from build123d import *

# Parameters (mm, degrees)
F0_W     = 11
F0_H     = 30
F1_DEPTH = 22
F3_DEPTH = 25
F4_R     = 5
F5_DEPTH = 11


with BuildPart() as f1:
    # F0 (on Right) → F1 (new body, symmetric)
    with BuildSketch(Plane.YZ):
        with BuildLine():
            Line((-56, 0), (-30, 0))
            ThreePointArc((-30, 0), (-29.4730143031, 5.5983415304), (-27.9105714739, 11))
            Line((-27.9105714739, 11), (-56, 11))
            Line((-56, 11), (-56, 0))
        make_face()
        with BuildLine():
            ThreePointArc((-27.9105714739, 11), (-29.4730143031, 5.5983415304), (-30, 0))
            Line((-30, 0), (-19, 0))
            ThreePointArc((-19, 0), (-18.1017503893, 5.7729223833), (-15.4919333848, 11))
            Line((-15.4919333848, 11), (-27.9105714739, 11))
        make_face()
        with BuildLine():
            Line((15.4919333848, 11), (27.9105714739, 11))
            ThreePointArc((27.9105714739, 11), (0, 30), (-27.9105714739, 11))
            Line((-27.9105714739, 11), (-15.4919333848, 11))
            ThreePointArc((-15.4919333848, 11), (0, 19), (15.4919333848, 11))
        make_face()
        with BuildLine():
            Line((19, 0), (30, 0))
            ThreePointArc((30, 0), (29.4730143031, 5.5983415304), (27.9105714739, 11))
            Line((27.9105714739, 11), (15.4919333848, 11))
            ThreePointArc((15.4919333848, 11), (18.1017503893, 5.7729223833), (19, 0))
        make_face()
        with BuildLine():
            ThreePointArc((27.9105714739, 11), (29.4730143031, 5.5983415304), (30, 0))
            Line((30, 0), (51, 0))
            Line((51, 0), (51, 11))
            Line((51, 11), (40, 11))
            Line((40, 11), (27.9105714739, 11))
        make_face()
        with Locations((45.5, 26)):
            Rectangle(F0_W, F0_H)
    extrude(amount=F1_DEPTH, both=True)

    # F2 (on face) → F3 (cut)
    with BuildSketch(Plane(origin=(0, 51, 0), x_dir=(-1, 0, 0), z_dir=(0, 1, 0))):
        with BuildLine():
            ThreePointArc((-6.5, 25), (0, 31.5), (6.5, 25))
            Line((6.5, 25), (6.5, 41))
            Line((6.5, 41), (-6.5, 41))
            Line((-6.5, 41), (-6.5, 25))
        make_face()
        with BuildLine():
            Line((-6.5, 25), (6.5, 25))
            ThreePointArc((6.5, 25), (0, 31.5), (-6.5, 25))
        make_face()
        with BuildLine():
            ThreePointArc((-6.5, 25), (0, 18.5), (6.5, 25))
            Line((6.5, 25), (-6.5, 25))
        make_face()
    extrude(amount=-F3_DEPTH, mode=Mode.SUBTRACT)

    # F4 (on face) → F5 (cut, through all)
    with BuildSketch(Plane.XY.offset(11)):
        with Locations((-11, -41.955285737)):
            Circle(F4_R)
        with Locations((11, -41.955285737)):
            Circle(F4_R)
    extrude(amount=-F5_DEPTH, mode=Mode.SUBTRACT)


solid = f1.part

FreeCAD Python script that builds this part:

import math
import FreeCAD as App
import Part
import Sketcher

doc = App.newDocument("Part")
body = doc.addObject("PartDesign::Body", "Body")

sketch1 = body.newObject("Sketcher::SketchObject", "Sketch")
sketch1.AttachmentSupport = (doc.getObject("YZ_Plane"), [""])
sketch1.MapMode = "FlatFace"
sketch1.addGeometry([
    Part.LineSegment(App.Vector(-56, 0, 0), App.Vector(-19, 0, 0)),
    Part.ArcOfCircle(Part.Circle(App.Vector(0, 0, 0), App.Vector(0, 0, 1), 19), math.radians(145), math.radians(180)),
    Part.ArcOfCircle(Part.Circle(App.Vector(0, 0, 0), App.Vector(0, 0, 1), 19), math.radians(35), math.radians(145)),
    Part.ArcOfCircle(Part.Circle(App.Vector(0, 0, 0), App.Vector(0, 0, 1), 19), math.radians(0), math.radians(35)),
    Part.LineSegment(App.Vector(19, 0, 0), App.Vector(51, 0, 0)),
    Part.LineSegment(App.Vector(51, 0, 0), App.Vector(51, 41, 0)),
    Part.LineSegment(App.Vector(51, 41, 0), App.Vector(40, 41, 0)),
    Part.LineSegment(App.Vector(40, 41, 0), App.Vector(40, 11, 0)),
    Part.LineSegment(App.Vector(40, 11, 0), App.Vector(28, 11, 0)),
    Part.ArcOfCircle(Part.Circle(App.Vector(0, 0, 0), App.Vector(0, 0, 1), 30), math.radians(22), math.radians(158)),
    Part.LineSegment(App.Vector(-28, 11, 0), App.Vector(-56, 11, 0)),
    Part.LineSegment(App.Vector(-56, 11, 0), App.Vector(-56, 0, 0)),
], False)
sketch1.addConstraint([
    Sketcher.Constraint("Coincident", 0, 2, 1, 2),
    Sketcher.Constraint("Tangent", 1, 1, 2, 2),
    Sketcher.Constraint("Tangent", 2, 1, 3, 2),
    Sketcher.Constraint("Coincident", 3, 1, 4, 1),
    Sketcher.Constraint("Coincident", 4, 2, 5, 1),
    Sketcher.Constraint("Coincident", 5, 2, 6, 1),
    Sketcher.Constraint("Coincident", 6, 2, 7, 1),
    Sketcher.Constraint("Coincident", 7, 2, 8, 1),
    Sketcher.Constraint("Coincident", 8, 2, 9, 1),
    Sketcher.Constraint("Coincident", 9, 2, 10, 1),
    Sketcher.Constraint("Coincident", 10, 2, 11, 1),
    Sketcher.Constraint("Coincident", 11, 2, 0, 1),
    Sketcher.Constraint("Horizontal", 0),
    Sketcher.Constraint("Horizontal", 4),
    Sketcher.Constraint("Vertical", 5),
    Sketcher.Constraint("Horizontal", 6),
    Sketcher.Constraint("Vertical", 7),
    Sketcher.Constraint("Horizontal", 8),
    Sketcher.Constraint("Horizontal", 10),
    Sketcher.Constraint("Vertical", 11),
    Sketcher.Constraint("Coincident", 1, 3, -1, 1),
    Sketcher.Constraint("Coincident", 3, 3, -1, 1),
    Sketcher.Constraint("Coincident", 9, 3, -1, 1),
    Sketcher.Constraint("PointOnObject", 0, 2, -1),
    Sketcher.Constraint("PointOnObject", 3, 1, -1),
    Sketcher.Constraint("Horizontal", 1, 1, 2, 1),
    Sketcher.Constraint("Horizontal", 2, 1, 7, 2),
    Sketcher.Constraint("Horizontal", 8, 2, 9, 2),
    Sketcher.Constraint("Equal", 6, 11),
    Sketcher.Constraint("Radius", 1, 19.0),
    Sketcher.Constraint("Radius", 9, 30.0),
    Sketcher.Constraint("DistanceX", 0, 1, 0, 2, 37.0),
    Sketcher.Constraint("DistanceX", 4, 1, 4, 2, 32.0),
    Sketcher.Constraint("DistanceX", 6, 2, 6, 1, 11.0),
    Sketcher.Constraint("DistanceY", 5, 1, 5, 2, 41.0),
])
pad1 = body.newObject("PartDesign::Pad", "Pad")
pad1.Profile = sketch1
pad1.Length = 44
pad1.Midplane = True

sketch2 = body.newObject("Sketcher::SketchObject", "Sketch001")
sketch2.AttachmentSupport = (doc.getObject("XZ_Plane"), [""])
sketch2.MapMode = "FlatFace"
sketch2.AttachmentOffset = App.Placement(App.Vector(0, 0, -51), App.Rotation())
sketch2.addGeometry([
    Part.LineSegment(App.Vector(-6, 25, 0), App.Vector(-6, 41, 0)),
    Part.LineSegment(App.Vector(-6, 41, 0), App.Vector(6, 41, 0)),
    Part.LineSegment(App.Vector(6, 41, 0), App.Vector(6, 25, 0)),
    Part.ArcOfCircle(Part.Circle(App.Vector(0, 25, 0), App.Vector(0, 0, 1), 6), math.radians(180), math.radians(360)),
], False)
sketch2.addConstraint([
    Sketcher.Constraint("Coincident", 0, 2, 1, 1),
    Sketcher.Constraint("Coincident", 1, 2, 2, 1),
    Sketcher.Constraint("Tangent", 2, 2, 3, 2),
    Sketcher.Constraint("Tangent", 3, 1, 0, 1),
    Sketcher.Constraint("Vertical", 0),
    Sketcher.Constraint("Horizontal", 1),
    Sketcher.Constraint("Vertical", 2),
    Sketcher.Constraint("PointOnObject", 3, 3, -2),
    Sketcher.Constraint("Radius", 3, 6.5),
    Sketcher.Constraint("DistanceY", 0, 1, 0, 2, 16.0),
    Sketcher.Constraint("DistanceY", -1, 1, 3, 3, 25.0),
])
pocket1 = body.newObject("PartDesign::Pocket", "Pocket")
pocket1.Profile = sketch2
pocket1.Length = 25
pocket1.Reversed = True

sketch3 = body.newObject("Sketcher::SketchObject", "Sketch002")
sketch3.AttachmentSupport = (doc.getObject("XY_Plane"), [""])
sketch3.MapMode = "FlatFace"
sketch3.AttachmentOffset = App.Placement(App.Vector(0, 0, 11), App.Rotation())
sketch3.addGeometry([
    Part.Circle(App.Vector(-11, -42, 0), App.Vector(0, 0, 1), 5),
    Part.Circle(App.Vector(11, -42, 0), App.Vector(0, 0, 1), 5),
], False)
sketch3.addConstraint([
    Sketcher.Constraint("Equal", 0, 1),
    Sketcher.Constraint("Symmetric", 0, 3, 1, 3, -2),
    Sketcher.Constraint("Diameter", 0, 10.0),
    Sketcher.Constraint("DistanceX", 0, 3, -1, 1, 11.0),
    Sketcher.Constraint("DistanceY", 0, 3, -1, 1, 41.955286),
])
pocket2 = body.newObject("PartDesign::Pocket", "Pocket001")
pocket2.Profile = sketch3
pocket2.Type = "ThroughAll"

doc.recompute()
